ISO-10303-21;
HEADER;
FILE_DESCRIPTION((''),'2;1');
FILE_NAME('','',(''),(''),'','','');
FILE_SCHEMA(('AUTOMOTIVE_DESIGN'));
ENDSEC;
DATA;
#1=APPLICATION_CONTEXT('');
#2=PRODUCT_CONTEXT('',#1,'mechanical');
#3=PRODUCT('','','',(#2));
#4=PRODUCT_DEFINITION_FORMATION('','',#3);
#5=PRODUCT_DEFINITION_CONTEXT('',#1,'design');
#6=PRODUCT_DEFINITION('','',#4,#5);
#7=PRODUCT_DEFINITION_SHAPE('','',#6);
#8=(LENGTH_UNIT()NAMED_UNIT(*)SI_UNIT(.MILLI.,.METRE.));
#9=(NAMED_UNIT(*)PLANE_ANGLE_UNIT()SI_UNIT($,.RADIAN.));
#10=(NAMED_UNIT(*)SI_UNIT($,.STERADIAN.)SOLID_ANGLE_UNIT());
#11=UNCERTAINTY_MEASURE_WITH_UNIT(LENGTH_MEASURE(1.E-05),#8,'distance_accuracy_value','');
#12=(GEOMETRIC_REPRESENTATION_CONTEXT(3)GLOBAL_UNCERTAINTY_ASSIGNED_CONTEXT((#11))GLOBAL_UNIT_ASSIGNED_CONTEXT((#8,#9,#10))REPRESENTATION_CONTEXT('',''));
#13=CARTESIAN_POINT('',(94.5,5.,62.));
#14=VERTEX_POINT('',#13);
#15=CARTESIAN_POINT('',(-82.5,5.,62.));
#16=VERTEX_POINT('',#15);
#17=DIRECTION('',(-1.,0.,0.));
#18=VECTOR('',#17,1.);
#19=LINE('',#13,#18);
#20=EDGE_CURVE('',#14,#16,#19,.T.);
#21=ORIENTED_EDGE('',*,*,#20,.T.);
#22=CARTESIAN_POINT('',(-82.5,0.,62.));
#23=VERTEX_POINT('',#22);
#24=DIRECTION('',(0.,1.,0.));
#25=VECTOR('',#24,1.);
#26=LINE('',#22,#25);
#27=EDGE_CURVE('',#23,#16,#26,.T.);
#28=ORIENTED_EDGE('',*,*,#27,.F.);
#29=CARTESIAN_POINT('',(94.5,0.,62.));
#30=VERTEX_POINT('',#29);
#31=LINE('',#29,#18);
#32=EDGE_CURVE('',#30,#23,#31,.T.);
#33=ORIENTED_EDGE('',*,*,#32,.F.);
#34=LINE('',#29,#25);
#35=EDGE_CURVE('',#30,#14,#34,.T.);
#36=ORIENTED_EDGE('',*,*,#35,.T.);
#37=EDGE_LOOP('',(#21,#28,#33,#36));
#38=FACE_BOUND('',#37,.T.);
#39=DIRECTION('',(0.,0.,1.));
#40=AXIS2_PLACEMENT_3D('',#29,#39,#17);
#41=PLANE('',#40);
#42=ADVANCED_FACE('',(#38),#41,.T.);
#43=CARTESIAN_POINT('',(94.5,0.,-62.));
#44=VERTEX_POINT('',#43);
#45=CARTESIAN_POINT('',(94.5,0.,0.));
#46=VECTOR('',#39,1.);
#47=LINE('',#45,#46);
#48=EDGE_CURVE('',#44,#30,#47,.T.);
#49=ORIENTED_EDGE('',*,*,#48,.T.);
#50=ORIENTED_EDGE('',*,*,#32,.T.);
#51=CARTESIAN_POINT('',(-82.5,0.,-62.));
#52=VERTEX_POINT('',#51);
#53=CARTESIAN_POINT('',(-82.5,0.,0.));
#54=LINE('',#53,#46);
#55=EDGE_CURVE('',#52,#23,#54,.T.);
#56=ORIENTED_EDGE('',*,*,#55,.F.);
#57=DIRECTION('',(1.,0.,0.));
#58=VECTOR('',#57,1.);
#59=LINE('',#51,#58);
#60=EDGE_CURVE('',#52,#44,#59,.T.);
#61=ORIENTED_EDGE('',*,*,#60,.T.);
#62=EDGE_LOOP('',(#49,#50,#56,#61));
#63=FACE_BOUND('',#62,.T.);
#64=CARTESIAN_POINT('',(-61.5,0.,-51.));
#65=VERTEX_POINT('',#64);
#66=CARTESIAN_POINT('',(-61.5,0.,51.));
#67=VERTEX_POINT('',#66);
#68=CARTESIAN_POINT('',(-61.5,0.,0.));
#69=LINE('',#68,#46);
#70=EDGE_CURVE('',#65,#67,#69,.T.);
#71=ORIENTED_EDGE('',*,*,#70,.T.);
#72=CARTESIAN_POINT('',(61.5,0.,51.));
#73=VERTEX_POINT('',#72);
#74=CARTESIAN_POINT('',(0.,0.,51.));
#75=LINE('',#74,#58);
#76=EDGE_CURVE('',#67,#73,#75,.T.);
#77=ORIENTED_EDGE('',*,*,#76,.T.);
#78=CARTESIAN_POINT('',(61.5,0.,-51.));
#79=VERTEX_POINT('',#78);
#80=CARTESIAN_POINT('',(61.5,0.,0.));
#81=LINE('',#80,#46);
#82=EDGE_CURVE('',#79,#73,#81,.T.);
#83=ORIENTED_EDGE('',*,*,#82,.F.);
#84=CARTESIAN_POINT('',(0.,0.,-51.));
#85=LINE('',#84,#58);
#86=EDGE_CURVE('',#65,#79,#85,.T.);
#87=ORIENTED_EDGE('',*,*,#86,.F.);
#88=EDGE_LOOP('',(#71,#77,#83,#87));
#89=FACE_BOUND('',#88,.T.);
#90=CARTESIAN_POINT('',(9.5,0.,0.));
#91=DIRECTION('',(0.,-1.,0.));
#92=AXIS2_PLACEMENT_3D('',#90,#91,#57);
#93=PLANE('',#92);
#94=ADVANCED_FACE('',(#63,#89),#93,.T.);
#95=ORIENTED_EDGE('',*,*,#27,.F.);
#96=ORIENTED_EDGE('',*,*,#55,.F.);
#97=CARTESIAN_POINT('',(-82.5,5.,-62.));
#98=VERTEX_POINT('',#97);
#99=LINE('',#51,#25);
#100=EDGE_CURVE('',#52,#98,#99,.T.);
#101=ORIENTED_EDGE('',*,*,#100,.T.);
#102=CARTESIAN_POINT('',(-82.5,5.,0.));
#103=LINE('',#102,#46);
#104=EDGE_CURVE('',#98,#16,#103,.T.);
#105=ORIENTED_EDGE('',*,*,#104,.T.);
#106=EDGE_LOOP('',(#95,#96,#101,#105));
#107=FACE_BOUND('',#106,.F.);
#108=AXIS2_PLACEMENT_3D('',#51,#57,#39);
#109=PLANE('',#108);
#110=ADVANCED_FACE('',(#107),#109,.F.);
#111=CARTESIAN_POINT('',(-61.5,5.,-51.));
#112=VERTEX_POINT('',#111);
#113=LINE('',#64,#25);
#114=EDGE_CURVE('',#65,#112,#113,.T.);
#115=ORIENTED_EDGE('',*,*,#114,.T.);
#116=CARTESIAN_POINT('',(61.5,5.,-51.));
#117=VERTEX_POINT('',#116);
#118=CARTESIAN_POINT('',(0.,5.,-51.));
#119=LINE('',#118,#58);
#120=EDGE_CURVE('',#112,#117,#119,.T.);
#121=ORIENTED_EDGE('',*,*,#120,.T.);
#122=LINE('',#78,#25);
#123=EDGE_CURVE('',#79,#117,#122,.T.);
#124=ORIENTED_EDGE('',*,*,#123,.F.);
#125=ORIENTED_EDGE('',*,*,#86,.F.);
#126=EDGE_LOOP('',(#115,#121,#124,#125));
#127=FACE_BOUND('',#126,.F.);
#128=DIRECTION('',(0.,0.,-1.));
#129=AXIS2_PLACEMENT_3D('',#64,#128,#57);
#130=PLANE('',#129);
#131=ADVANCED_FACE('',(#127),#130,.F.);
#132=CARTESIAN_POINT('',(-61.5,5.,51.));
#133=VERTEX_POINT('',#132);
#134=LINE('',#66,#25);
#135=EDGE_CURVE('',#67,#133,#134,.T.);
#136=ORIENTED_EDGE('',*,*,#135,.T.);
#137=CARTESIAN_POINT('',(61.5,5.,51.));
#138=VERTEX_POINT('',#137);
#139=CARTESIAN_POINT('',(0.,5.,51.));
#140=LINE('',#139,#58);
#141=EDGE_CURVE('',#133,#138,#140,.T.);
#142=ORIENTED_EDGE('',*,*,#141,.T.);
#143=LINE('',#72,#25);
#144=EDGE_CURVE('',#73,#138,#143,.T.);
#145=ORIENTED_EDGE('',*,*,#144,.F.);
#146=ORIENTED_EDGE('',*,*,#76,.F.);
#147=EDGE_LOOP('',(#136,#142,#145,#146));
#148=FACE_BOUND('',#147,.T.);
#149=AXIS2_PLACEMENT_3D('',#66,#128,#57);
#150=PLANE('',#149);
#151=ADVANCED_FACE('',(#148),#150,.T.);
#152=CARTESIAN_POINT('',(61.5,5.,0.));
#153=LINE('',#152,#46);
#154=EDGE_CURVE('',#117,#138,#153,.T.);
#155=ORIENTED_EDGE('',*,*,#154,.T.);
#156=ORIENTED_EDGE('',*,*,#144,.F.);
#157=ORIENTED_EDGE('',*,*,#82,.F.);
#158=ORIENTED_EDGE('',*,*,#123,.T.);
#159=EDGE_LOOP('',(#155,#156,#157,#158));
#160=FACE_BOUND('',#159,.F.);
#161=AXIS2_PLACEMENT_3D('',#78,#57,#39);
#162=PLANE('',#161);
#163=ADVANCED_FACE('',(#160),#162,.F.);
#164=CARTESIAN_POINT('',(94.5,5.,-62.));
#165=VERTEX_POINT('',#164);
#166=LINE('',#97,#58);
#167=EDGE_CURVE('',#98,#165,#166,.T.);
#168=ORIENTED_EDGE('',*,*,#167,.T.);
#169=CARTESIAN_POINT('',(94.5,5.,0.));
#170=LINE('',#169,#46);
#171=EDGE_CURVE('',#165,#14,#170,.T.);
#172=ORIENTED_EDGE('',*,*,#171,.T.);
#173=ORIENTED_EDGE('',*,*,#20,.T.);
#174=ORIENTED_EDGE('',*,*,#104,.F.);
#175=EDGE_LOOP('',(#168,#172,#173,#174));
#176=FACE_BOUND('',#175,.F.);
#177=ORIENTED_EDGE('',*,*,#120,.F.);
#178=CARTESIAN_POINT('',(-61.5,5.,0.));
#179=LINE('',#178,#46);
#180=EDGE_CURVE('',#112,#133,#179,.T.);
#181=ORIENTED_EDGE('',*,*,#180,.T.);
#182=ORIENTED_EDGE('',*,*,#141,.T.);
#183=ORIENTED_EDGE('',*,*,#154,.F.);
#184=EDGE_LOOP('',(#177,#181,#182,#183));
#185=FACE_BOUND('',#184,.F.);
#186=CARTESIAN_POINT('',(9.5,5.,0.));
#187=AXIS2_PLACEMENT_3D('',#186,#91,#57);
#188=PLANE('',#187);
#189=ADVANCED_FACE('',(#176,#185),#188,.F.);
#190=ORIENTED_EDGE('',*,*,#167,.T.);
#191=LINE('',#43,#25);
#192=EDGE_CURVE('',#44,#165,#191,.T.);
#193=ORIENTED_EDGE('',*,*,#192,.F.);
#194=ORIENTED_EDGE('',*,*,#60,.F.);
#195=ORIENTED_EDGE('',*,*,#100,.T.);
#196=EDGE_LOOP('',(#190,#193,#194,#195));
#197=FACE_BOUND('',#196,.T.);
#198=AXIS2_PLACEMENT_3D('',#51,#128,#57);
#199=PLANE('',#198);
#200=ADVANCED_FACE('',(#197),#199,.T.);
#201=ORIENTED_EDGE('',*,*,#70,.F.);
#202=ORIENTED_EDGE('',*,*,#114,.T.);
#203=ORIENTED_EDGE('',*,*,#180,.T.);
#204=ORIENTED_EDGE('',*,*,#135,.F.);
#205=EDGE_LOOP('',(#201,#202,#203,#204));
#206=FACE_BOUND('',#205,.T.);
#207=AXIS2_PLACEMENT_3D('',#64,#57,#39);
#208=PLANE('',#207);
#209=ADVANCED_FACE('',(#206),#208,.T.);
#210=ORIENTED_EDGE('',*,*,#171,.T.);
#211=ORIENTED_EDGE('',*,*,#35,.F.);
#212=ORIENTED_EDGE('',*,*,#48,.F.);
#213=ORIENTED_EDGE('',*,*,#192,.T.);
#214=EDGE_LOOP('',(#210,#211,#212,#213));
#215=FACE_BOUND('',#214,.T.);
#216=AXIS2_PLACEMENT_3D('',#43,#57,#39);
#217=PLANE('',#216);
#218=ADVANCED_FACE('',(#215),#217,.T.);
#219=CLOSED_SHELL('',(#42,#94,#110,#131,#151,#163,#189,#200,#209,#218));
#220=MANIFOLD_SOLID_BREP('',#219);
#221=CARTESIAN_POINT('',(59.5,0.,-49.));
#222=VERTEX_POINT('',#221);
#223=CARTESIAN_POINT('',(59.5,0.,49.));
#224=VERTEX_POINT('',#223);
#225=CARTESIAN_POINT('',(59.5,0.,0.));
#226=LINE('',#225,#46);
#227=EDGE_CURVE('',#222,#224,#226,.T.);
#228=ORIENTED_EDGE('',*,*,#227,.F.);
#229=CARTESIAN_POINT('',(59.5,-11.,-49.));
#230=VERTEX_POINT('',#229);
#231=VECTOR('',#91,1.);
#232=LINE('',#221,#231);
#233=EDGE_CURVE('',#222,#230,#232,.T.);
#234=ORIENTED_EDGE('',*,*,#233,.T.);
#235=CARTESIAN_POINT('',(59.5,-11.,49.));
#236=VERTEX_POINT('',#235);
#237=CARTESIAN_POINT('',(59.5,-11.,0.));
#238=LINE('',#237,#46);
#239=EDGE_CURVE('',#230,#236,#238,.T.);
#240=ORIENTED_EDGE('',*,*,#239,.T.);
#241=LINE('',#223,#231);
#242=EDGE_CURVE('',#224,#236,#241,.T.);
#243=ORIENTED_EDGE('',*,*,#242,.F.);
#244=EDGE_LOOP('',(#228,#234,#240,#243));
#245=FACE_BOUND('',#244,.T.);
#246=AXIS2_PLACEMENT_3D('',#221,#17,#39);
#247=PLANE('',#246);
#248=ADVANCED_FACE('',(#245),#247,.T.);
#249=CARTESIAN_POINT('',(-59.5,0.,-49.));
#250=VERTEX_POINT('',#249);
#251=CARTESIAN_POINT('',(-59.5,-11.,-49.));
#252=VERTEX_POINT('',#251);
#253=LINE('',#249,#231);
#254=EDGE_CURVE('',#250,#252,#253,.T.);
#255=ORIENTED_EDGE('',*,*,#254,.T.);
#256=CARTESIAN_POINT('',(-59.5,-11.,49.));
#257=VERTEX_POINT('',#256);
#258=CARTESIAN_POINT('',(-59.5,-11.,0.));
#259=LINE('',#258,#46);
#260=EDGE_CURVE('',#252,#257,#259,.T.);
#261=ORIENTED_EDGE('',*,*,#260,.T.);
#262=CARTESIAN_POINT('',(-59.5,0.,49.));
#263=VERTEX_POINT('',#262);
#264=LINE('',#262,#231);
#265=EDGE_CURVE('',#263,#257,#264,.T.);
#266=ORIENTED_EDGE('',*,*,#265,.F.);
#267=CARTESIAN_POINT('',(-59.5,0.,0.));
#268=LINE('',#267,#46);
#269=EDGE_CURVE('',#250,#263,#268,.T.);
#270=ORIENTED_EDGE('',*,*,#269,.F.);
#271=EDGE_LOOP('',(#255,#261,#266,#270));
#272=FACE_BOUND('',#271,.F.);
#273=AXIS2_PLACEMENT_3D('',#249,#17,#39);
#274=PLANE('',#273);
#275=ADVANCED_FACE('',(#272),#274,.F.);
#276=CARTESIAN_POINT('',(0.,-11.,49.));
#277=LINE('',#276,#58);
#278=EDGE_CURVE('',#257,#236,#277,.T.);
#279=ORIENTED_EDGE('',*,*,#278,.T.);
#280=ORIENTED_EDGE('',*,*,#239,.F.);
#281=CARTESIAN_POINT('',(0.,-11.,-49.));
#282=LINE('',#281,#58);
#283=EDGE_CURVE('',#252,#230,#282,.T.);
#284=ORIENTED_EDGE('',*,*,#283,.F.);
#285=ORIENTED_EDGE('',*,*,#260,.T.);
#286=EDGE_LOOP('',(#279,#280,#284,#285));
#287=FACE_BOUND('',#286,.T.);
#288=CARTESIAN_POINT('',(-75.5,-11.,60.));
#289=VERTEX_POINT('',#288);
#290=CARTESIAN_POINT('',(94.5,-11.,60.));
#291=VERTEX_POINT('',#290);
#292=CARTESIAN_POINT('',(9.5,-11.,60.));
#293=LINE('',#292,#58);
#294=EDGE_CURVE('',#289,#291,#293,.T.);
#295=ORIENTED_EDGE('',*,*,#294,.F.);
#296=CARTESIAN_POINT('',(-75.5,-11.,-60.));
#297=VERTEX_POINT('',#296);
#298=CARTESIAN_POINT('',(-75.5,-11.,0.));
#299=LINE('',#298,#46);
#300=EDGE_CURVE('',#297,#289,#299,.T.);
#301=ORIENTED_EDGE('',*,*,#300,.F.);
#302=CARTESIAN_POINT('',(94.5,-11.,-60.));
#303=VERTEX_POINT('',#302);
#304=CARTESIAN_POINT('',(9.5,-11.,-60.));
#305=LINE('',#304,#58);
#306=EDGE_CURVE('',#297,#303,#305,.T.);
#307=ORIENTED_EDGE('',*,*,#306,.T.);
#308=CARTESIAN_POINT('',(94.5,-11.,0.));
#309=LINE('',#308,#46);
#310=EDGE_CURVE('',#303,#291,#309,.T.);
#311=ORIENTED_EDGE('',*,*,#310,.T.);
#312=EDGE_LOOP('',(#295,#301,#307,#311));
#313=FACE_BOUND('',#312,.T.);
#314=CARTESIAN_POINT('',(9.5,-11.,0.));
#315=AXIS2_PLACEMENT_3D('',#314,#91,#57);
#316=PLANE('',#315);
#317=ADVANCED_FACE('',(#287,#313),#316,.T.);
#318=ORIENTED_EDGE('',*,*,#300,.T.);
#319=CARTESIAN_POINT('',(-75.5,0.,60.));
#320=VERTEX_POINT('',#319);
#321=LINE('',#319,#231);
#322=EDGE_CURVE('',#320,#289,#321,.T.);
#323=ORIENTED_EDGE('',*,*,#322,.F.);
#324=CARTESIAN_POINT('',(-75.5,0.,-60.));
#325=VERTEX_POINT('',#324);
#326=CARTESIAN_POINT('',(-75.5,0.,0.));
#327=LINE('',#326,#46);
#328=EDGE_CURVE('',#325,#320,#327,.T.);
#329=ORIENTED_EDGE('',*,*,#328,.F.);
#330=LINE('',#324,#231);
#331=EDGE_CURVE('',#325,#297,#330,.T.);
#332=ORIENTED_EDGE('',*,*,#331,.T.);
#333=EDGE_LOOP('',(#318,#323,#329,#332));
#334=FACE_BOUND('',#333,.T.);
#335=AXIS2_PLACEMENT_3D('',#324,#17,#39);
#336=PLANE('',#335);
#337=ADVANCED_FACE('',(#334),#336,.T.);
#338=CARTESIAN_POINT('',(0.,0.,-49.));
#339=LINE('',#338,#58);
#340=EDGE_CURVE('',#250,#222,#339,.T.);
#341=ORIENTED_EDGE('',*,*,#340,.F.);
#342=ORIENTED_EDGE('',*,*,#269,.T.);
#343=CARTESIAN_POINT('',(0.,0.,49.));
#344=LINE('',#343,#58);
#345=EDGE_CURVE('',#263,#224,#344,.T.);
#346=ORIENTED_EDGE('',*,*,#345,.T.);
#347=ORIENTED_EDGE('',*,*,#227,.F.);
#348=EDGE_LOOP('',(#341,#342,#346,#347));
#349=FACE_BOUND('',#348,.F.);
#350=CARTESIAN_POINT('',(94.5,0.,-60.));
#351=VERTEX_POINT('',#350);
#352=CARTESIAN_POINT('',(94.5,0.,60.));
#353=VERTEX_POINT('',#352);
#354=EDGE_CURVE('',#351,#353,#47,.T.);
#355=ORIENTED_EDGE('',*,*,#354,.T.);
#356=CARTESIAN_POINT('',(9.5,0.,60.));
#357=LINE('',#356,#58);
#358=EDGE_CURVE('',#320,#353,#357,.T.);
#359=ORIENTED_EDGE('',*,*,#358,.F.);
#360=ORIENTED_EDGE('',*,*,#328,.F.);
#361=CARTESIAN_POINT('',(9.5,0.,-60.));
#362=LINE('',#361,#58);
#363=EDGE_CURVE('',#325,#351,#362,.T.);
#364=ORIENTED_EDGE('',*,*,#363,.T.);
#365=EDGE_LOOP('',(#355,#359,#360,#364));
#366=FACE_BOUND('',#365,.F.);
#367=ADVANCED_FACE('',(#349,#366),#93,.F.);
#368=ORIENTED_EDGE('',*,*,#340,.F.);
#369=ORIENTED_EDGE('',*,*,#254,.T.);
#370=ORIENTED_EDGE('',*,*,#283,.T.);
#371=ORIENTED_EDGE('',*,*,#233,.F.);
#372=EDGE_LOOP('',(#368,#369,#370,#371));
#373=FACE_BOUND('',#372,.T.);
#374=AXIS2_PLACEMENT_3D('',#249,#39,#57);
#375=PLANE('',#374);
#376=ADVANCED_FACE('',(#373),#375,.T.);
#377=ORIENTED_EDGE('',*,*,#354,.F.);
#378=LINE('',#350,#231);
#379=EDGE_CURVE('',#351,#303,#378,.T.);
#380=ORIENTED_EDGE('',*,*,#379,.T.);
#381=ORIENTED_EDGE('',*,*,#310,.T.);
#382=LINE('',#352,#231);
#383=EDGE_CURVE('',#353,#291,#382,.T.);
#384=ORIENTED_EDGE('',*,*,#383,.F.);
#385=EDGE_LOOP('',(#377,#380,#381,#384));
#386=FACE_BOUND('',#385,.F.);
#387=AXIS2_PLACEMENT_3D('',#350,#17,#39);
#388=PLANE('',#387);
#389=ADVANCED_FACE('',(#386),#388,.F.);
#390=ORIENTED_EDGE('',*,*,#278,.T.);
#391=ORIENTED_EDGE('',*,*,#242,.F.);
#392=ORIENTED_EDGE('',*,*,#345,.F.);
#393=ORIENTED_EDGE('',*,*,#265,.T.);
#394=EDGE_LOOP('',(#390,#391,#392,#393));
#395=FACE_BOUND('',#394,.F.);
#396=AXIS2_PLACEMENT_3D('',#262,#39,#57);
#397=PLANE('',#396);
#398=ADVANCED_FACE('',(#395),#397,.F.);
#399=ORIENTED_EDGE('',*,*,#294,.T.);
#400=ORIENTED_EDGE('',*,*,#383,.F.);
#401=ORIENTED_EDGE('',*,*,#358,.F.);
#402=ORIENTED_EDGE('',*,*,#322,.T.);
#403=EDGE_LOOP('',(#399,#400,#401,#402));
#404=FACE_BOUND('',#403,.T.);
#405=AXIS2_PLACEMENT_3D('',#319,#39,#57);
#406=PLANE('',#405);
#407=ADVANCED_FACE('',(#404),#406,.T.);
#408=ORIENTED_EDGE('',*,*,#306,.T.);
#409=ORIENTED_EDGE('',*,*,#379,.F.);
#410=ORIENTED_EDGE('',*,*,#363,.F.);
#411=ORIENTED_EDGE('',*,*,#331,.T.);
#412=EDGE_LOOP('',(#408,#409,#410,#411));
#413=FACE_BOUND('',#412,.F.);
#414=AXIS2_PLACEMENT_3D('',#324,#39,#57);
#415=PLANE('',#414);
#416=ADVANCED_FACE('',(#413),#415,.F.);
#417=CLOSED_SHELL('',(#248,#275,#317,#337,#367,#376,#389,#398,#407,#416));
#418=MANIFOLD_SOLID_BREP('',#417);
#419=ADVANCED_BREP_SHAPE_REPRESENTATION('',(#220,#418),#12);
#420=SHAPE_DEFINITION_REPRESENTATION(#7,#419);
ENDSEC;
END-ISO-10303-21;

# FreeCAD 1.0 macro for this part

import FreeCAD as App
import Part
import Sketcher

V = App.Vector
Q = App.Units.Quantity


def add_polygon(sketch, points):
    """Adds a closed chain of lines whose ends are joined by coincident constraints."""
    first, n = sketch.GeometryCount, len(points)
    for a, b in zip(points, points[1:] + points[:1]):
        sketch.addGeometry(Part.LineSegment(App.Vector(*a, 0), App.Vector(*b, 0)), False)
    for i in range(n):
        sketch.addConstraint(Sketcher.Constraint("Coincident", first + i, 2, first + (i + 1) % n, 1))

doc = App.newDocument("Part")
body = doc.addObject("PartDesign::Body", "Body")

# Sketch on XZ plane
sketch1 = body.newObject("Sketcher::SketchObject", "Sketch")
sketch1.AttachmentSupport = (doc.getObject("XZ_Plane"), [""])
sketch1.MapMode = "FlatFace"
add_polygon(sketch1, [(-76, 60), (-76, -60), (94, -60), (94, 60)])  # lines 0-3
add_polygon(sketch1, [(60, -49), (-60, -49), (-60, 49), (60, 49)])  # lines 4-7
sketch1.addConstraint(Sketcher.Constraint("Vertical", 0))
sketch1.addConstraint(Sketcher.Constraint("Horizontal", 1))
sketch1.addConstraint(Sketcher.Constraint("Vertical", 2))
sketch1.addConstraint(Sketcher.Constraint("Horizontal", 3))
sketch1.addConstraint(Sketcher.Constraint("Horizontal", 4))
sketch1.addConstraint(Sketcher.Constraint("Vertical", 5))
sketch1.addConstraint(Sketcher.Constraint("Horizontal", 6))
sketch1.addConstraint(Sketcher.Constraint("Vertical", 7))
sketch1.addConstraint(Sketcher.Constraint("Symmetric", 4, 2, 6, 2, -1, 1))
sketch1.addConstraint(Sketcher.Constraint("DistanceX", 1, 1, 1, 2, Q("170 mm")))
sketch1.addConstraint(Sketcher.Constraint("DistanceX", 4, 2, 4, 1, Q("119 mm")))
sketch1.addConstraint(Sketcher.Constraint("DistanceY", 0, 2, 0, 1, Q("120 mm")))
sketch1.addConstraint(Sketcher.Constraint("DistanceY", 5, 1, 5, 2, Q("98 mm")))
sketch1.addConstraint(Sketcher.Constraint("DistanceY", 0, 2, -1, 1, Q("60 mm")))
sketch1.addConstraint(Sketcher.Constraint("DistanceX", 0, 2, 4, 2, Q("16 mm")))
pad1 = body.newObject("PartDesign::Pad", "Pad")
pad1.Profile = sketch1
pad1.Length = 11
body2 = doc.addObject("PartDesign::Body", "Body001")

# Sketch on XZ plane
sketch2 = body2.newObject("Sketcher::SketchObject", "Sketch001")
sketch2.AttachmentSupport = (doc.getObject("XZ_Plane001"), [""])
sketch2.MapMode = "FlatFace"
add_polygon(sketch2, [(94, -62), (94, 62), (-82, 62), (-82, -62)])  # lines 0-3
add_polygon(sketch2, [(62, -51), (-62, -51), (-62, 51), (62, 51)])  # lines 4-7
sketch2.addConstraint(Sketcher.Constraint("Vertical", 0))
sketch2.addConstraint(Sketcher.Constraint("Horizontal", 1))
sketch2.addConstraint(Sketcher.Constraint("Vertical", 2))
sketch2.addConstraint(Sketcher.Constraint("Horizontal", 3))
sketch2.addConstraint(Sketcher.Constraint("Horizontal", 4))
sketch2.addConstraint(Sketcher.Constraint("Vertical", 5))
sketch2.addConstraint(Sketcher.Constraint("Horizontal", 6))
sketch2.addConstraint(Sketcher.Constraint("Vertical", 7))
sketch2.addConstraint(Sketcher.Constraint("Symmetric", 4, 2, 6, 2, -1, 1))
sketch2.addConstraint(Sketcher.Constraint("DistanceX", 1, 2, 1, 1, Q("177 mm")))
sketch2.addConstraint(Sketcher.Constraint("DistanceX", 4, 2, 4, 1, Q("123 mm")))
sketch2.addConstraint(Sketcher.Constraint("DistanceY", 0, 1, 0, 2, Q("124 mm")))
sketch2.addConstraint(Sketcher.Constraint("DistanceY", 5, 1, 5, 2, Q("102 mm")))
sketch2.addConstraint(Sketcher.Constraint("DistanceY", -1, 1, 0, 2, Q("62 mm")))
sketch2.addConstraint(Sketcher.Constraint("DistanceX", 2, 2, 4, 2, Q("21 mm")))
pad2 = body2.newObject("PartDesign::Pad", "Pad001")
pad2.Profile = sketch2
pad2.Length = 5
pad2.Reversed = True

doc.recompute()
